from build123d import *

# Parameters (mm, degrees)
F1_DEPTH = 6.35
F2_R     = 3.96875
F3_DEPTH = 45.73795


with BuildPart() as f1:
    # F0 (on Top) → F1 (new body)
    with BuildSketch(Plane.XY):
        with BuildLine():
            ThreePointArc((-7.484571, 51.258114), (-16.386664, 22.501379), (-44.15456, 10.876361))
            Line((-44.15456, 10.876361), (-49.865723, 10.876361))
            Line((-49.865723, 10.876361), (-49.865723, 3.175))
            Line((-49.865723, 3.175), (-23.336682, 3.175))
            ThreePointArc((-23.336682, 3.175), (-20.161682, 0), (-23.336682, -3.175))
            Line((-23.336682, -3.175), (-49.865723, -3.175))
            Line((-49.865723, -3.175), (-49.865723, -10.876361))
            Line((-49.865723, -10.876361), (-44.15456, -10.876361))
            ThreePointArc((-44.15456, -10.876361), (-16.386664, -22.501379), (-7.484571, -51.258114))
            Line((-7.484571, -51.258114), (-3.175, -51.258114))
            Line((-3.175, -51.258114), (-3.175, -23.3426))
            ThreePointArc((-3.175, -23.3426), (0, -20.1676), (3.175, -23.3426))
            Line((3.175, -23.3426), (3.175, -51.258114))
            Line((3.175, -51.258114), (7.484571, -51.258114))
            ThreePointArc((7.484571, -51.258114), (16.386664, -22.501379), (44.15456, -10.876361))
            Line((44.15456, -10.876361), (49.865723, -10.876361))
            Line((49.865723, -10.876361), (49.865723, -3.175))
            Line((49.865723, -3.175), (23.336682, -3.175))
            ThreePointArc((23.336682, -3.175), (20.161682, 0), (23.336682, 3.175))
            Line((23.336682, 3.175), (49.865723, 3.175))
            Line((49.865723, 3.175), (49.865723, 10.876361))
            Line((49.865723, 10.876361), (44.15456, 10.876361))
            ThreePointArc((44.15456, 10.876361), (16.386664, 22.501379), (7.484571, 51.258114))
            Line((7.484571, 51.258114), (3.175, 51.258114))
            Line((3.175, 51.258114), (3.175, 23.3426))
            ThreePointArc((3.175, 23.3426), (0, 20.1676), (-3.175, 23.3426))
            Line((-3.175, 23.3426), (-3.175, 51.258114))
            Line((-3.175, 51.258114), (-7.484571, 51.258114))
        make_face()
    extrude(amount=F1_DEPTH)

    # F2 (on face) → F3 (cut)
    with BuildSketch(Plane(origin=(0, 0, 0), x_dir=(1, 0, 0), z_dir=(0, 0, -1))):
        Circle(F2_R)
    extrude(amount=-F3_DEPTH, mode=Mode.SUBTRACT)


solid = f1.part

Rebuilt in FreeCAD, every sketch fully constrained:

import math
import FreeCAD as App
import Part
import Sketcher

V = App.Vector
Q = App.Units.Quantity

doc = App.newDocument("Part")
body = doc.addObject("PartDesign::Body", "Body")

# Sketch on XY plane
sketch1 = body.newObject("Sketcher::SketchObject", "Sketch")
sketch1.AttachmentSupport = (doc.getObject("XY_Plane"), [""])
sketch1.MapMode = "FlatFace"
sketch1.addGeometry([
    Part.ArcOfCircle(Part.Circle(V(-42.712134, 46.407094, 0), V(0, 0, 1), 35.56), math.radians(-92.324736), math.radians(7.840617)),  # 0
    Part.LineSegment(V(-44.15456, 10.876361, 0), V(-49.865723, 10.876361, 0)),  # 1
    Part.LineSegment(V(-49.865723, 10.876361, 0), V(-49.865723, 3.175, 0)),  # 2
    Part.LineSegment(V(-49.865723, 3.175, 0), V(-23.336682, 3.175, 0)),  # 3
    Part.ArcOfCircle(Part.Circle(V(-23.336682, 0, 0), V(0, 0, 1), 3.175), math.radians(-90), math.radians(90)),  # 4
    Part.LineSegment(V(-23.336682, -3.175, 0), V(-49.865723, -3.175, 0)),  # 5
    Part.LineSegment(V(-49.865723, -3.175, 0), V(-49.865723, -10.876361, 0)),  # 6
    Part.LineSegment(V(-49.865723, -10.876361, 0), V(-44.15456, -10.876361, 0)),  # 7
    Part.ArcOfCircle(Part.Circle(V(-42.712134, -46.407094, 0), V(0, 0, 1), 35.56), math.radians(-7.840617), math.radians(92.324736)),  # 8
    Part.LineSegment(V(-7.484571, -51.258114, 0), V(-3.175, -51.258114, 0)),  # 9
    Part.LineSegment(V(-3.175, -51.258114, 0), V(-3.175, -23.3426, 0)),  # 10
    Part.ArcOfCircle(Part.Circle(V(0, -23.3426, 0), V(0, 0, 1), 3.175), math.radians(0), math.radians(180)),  # 11
    Part.LineSegment(V(3.175, -23.3426, 0), V(3.175, -51.258114, 0)),  # 12
    Part.LineSegment(V(3.175, -51.258114, 0), V(7.484571, -51.258114, 0)),  # 13
    Part.ArcOfCircle(Part.Circle(V(42.712134, -46.407094, 0), V(0, 0, 1), 35.56), math.radians(87.675264), math.radians(187.840617)),  # 14
    Part.LineSegment(V(44.15456, -10.876361, 0), V(49.865723, -10.876361, 0)),  # 15
    Part.LineSegment(V(49.865723, -10.876361, 0), V(49.865723, -3.175, 0)),  # 16
    Part.LineSegment(V(49.865723, -3.175, 0), V(23.336682, -3.175, 0)),  # 17
    Part.ArcOfCircle(Part.Circle(V(23.336682, 0, 0), V(0, 0, 1), 3.175), math.radians(90), math.radians(270)),  # 18
    Part.LineSegment(V(23.336682, 3.175, 0), V(49.865723, 3.175, 0)),  # 19
    Part.LineSegment(V(49.865723, 3.175, 0), V(49.865723, 10.876361, 0)),  # 20
    Part.LineSegment(V(49.865723, 10.876361, 0), V(44.15456, 10.876361, 0)),  # 21
    Part.ArcOfCircle(Part.Circle(V(42.712134, 46.407094, 0), V(0, 0, 1), 35.56), math.radians(172.159383), math.radians(272.324736)),  # 22
    Part.LineSegment(V(7.484571, 51.258114, 0), V(3.175, 51.258114, 0)),  # 23
    Part.LineSegment(V(3.175, 51.258114, 0), V(3.175, 23.3426, 0)),  # 24
    Part.ArcOfCircle(Part.Circle(V(0, 23.3426, 0), V(0, 0, 1), 3.175), math.radians(180), math.radians(360)),  # 25
    Part.LineSegment(V(-3.175, 23.3426, 0), V(-3.175, 51.258114, 0)),  # 26
    Part.LineSegment(V(-3.175, 51.258114, 0), V(-7.484571, 51.258114, 0)),  # 27
], False)
sketch1.addConstraint([
    Sketcher.Constraint("Coincident", 0, 1, 1, 1),
    Sketcher.Constraint("Coincident", 1, 2, 2, 1),
    Sketcher.Constraint("Coincident", 2, 2, 3, 1),
    Sketcher.Constraint("Tangent", 3, 2, 4, 2),
    Sketcher.Constraint("Tangent", 4, 1, 5, 1),
    Sketcher.Constraint("Coincident", 5, 2, 6, 1),
    Sketcher.Constraint("Coincident", 6, 2, 7, 1),
    Sketcher.Constraint("Coincident", 7, 2, 8, 2),
    Sketcher.Constraint("Coincident", 8, 1, 9, 1),
    Sketcher.Constraint("Coincident", 9, 2, 10, 1),
    Sketcher.Constraint("Tangent", 10, 2, 11, 2),
    Sketcher.Constraint("Tangent", 11, 1, 12, 1),
    Sketcher.Constraint("Coincident", 12, 2, 13, 1),
    Sketcher.Constraint("Coincident", 13, 2, 14, 2),
    Sketcher.Constraint("Coincident", 14, 1, 15, 1),
    Sketcher.Constraint("Coincident", 15, 2, 16, 1),
    Sketcher.Constraint("Coincident", 16, 2, 17, 1),
    Sketcher.Constraint("Tangent", 17, 2, 18, 2),
    Sketcher.Constraint("Tangent", 18, 1, 19, 1),
    Sketcher.Constraint("Coincident", 19, 2, 20, 1),
    Sketcher.Constraint("Coincident", 20, 2, 21, 1),
    Sketcher.Constraint("Coincident", 21, 2, 22, 2),
    Sketcher.Constraint("Coincident", 22, 1, 23, 1),
    Sketcher.Constraint("Coincident", 23, 2, 24, 1),
    Sketcher.Constraint("Tangent", 24, 2, 25, 2),
    Sketcher.Constraint("Tangent", 25, 1, 26, 1),
    Sketcher.Constraint("Coincident", 26, 2, 27, 1),
    Sketcher.Constraint("Coincident", 27, 2, 0, 2),
    Sketcher.Constraint("Horizontal", 1),
    Sketcher.Constraint("Vertical", 2),
    Sketcher.Constraint("Horizontal", 3),
    Sketcher.Constraint("Horizontal", 5),
    Sketcher.Constraint("Vertical", 6),
    Sketcher.Constraint("Horizontal", 7),
    Sketcher.Constraint("Horizontal", 9),
    Sketcher.Constraint("Vertical", 10),
    Sketcher.Constraint("Vertical", 12),
    Sketcher.Constraint("Horizontal", 13),
    Sketcher.Constraint("Horizontal", 15),
    Sketcher.Constraint("Vertical", 16),
    Sketcher.Constraint("Horizontal", 17),
    Sketcher.Constraint("Horizontal", 19),
    Sketcher.Constraint("Vertical", 20),
    Sketcher.Constraint("Horizontal", 21),
    Sketcher.Constraint("Horizontal", 23),
    Sketcher.Constraint("Vertical", 24),
    Sketcher.Constraint("Vertical", 26),
    Sketcher.Constraint("Horizontal", 27),
    Sketcher.Constraint("Equal", 0, 8),
    Sketcher.Constraint("Equal", 4, 11),
    Sketcher.Constraint("Equal", 8, 14),
    Sketcher.Constraint("Equal", 11, 18),
    Sketcher.Constraint("Equal", 14, 22),
    Sketcher.Constraint("Equal", 18, 25),
    Sketcher.Constraint("Symmetric", 0, 3, 14, 3, -1, 1),
    Sketcher.Constraint("Symmetric", 4, 3, 18, 3, -1, 1),
    Sketcher.Constraint("Symmetric", 8, 3, 22, 3, -1, 1),
    Sketcher.Constraint("Symmetric", 11, 3, 25, 3, -1, 1),
    Sketcher.Constraint("Symmetric", 1, 2, 15, 2, -1, 1),
    Sketcher.Constraint("Symmetric", 6, 2, 20, 2, -1, 1),
    Sketcher.Constraint("Symmetric", 8, 3, 14, 3, -2),
    Sketcher.Constraint("Symmetric", 9, 2, 12, 2, -2),
    Sketcher.Constraint("Symmetric", 6, 2, 15, 2, -2),
    Sketcher.Constraint("PointOnObject", 4, 3, -1),
    Sketcher.Constraint("Horizontal", 23, 2, 26, 2),
    Sketcher.Constraint("Vertical", 13, 2, 22, 1),
    Sketcher.Constraint("Radius", 0, Q("1.4 in")),
    Sketcher.Constraint("Radius", 4, Q("0.125 in")),
    Sketcher.Constraint("DistanceY", 11, 3, -1, 1, Q("0.919 in")),
    Sketcher.Constraint("DistanceX", 3, 1, 3, 2, Q("26.529041 mm")),
    Sketcher.Constraint("DistanceX", 9, 1, 9, 2, Q("4.309571 mm")),
    Sketcher.Constraint("DistanceY", 2, 2, 2, 1, Q("7.701361 mm")),
    Sketcher.Constraint("DistanceX", 1, 2, 1, 1, Q("5.711163 mm")),
    Sketcher.Constraint("DistanceY", 10, 1, 10, 2, Q("27.915514 mm")),
    Sketcher.Constraint("DistanceX", 4, 3, -1, 1, Q("23.336682 mm")),
])
pad1 = body.newObject("PartDesign::Pad", "Pad")
pad1.Profile = sketch1
pad1.Length = Q("0.25 in")

# Sketch on XY plane
sketch2 = body.newObject("Sketcher::SketchObject", "Sketch001")
sketch2.AttachmentSupport = (doc.getObject("XY_Plane"), [""])
sketch2.MapMode = "FlatFace"
sketch2.addGeometry(Part.Circle(V(0, 0, 0), V(0, 0, 1), 3.96875), False)
sketch2.addConstraint([
    Sketcher.Constraint("Coincident", 0, 3, -1, 1),
    Sketcher.Constraint("Diameter", 0, Q("0.3125 in")),
])
pocket1 = body.newObject("PartDesign::Pocket", "Pocket")
pocket1.Profile = sketch2
pocket1.Length = 45.73795
pocket1.Reversed = True

doc.recompute()
